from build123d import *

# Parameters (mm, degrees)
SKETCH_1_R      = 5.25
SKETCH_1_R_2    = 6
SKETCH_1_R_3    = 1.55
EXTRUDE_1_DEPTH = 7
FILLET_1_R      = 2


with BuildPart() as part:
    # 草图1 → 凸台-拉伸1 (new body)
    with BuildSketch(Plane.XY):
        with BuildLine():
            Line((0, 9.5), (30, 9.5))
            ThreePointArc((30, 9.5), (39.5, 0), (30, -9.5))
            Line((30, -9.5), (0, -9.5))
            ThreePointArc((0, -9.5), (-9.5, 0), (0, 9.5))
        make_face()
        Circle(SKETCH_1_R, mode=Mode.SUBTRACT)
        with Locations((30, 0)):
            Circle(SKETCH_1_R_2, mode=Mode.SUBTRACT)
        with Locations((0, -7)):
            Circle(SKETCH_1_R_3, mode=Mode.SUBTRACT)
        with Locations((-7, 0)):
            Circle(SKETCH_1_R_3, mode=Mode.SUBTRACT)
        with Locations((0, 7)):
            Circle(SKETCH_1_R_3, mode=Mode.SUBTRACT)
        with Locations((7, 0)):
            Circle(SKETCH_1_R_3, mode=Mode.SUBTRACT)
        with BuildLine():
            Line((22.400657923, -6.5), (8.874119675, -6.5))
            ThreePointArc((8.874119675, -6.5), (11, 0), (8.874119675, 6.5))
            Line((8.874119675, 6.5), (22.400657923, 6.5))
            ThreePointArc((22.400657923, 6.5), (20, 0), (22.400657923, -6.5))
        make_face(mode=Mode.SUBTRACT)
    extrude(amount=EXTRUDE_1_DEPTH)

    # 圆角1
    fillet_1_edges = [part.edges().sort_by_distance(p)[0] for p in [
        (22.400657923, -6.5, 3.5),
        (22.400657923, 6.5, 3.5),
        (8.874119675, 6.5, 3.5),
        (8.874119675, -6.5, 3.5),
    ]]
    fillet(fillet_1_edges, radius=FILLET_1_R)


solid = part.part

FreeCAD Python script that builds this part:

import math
import FreeCAD as App
import Part
import Sketcher

V = App.Vector
Q = App.Units.Quantity


def edges_at(feature, points):
    """Names of the edges that pass closest to the given points."""
    edges = feature.Shape.Edges
    near = lambda p: min(range(len(edges)), key=lambda i: edges[i].distToShape(Part.Vertex(*p))[0])
    return sorted({f"Edge{near(p) + 1}" for p in points})

doc = App.newDocument("Part")
body = doc.addObject("PartDesign::Body", "Body")

# Sketch on XY plane
sketch1 = body.newObject("Sketcher::SketchObject", "Sketch")
sketch1.AttachmentSupport = (doc.getObject("XY_Plane"), [""])
sketch1.MapMode = "FlatFace"
sketch1.addGeometry([
    Part.LineSegment(V(30, 9.5, 0), V(0, 9.5, 0)),  # 0
    Part.ArcOfCircle(Part.Circle(V(0, 0, 0), V(0, 0, 1), 9.5), math.radians(90), math.radians(270)),  # 1
    Part.LineSegment(V(0, -9.5, 0), V(30, -9.5, 0)),  # 2
    Part.ArcOfCircle(Part.Circle(V(30, 0, 0), V(0, 0, 1), 9.5), math.radians(-90), math.radians(90)),  # 3
    Part.Circle(V(0, -7, 0), V(0, 0, 1), 1.6),  # 4
    Part.Circle(V(30, 0, 0), V(0, 0, 1), 6),  # 5
    Part.LineSegment(V(22.4, -6.5, 0), V(8.9, -6.5, 0)),  # 6
    Part.ArcOfCircle(Part.Circle(V(0, 0, 0), V(0, 0, 1), 11), math.radians(-36), math.radians(36)),  # 7
    Part.LineSegment(V(8.9, 6.5, 0), V(22.4, 6.5, 0)),  # 8
    Part.ArcOfCircle(Part.Circle(V(30, 0, 0), V(0, 0, 1), 10), math.radians(139), math.radians(221)),  # 9
    Part.Circle(V(7, 0, 0), V(0, 0, 1), 1.6),  # 10
    Part.Circle(V(0, 0, 0), V(0, 0, 1), 5.2),  # 11
    Part.Circle(V(-7, 0, 0), V(0, 0, 1), 1.6),  # 12
    Part.Circle(V(0, 7, 0), V(0, 0, 1), 1.6),  # 13
], False)
sketch1.addConstraint([
    Sketcher.Constraint("Tangent", 0, 2, 1, 1),
    Sketcher.Constraint("Tangent", 1, 2, 2, 1),
    Sketcher.Constraint("Tangent", 2, 2, 3, 1),
    Sketcher.Constraint("Tangent", 3, 2, 0, 1),
    Sketcher.Constraint("Coincident", 6, 2, 7, 1),
    Sketcher.Constraint("Coincident", 7, 2, 8, 1),
    Sketcher.Constraint("Coincident", 8, 2, 9, 1),
    Sketcher.Constraint("Coincident", 9, 2, 6, 1),
    Sketcher.Constraint("Horizontal", 0),
    Sketcher.Constraint("Horizontal", 2),
    Sketcher.Constraint("Horizontal", 6),
    Sketcher.Constraint("Horizontal", 8),
    Sketcher.Constraint("Coincident", 1, 3, -1, 1),
    Sketcher.Constraint("Coincident", 7, 3, -1, 1),
    Sketcher.Constraint("Coincident", 11, 3, -1, 1),
    Sketcher.Constraint("Coincident", 5, 3, 3, 3),
    Sketcher.Constraint("Coincident", 9, 3, 3, 3),
    Sketcher.Constraint("Equal", 4, 10),
    Sketcher.Constraint("Equal", 10, 12),
    Sketcher.Constraint("Equal", 12, 13),
    Sketcher.Constraint("Symmetric", 10, 3, 12, 3, -1, 1),
    Sketcher.Constraint("Symmetric", 4, 3, 13, 3, -1, 1),
    Sketcher.Constraint("PointOnObject", 4, 3, -2),
    Sketcher.Constraint("PointOnObject", 10, 3, -1),
    Sketcher.Constraint("Vertical", 6, 2, 7, 2),
    Sketcher.Constraint("Diameter", 5, Q("12 mm")),
    Sketcher.Constraint("Radius", 7, Q("11 mm")),
    Sketcher.Constraint("Radius", 9, Q("10 mm")),
    Sketcher.Constraint("Diameter", 4, Q("3.1 mm")),
    Sketcher.Constraint("Diameter", 11, Q("10.5 mm")),
    Sketcher.Constraint("Radius", 1, Q("9.5 mm")),
    Sketcher.Constraint("DistanceX", 0, 2, 0, 1, Q("30 mm")),
    Sketcher.Constraint("DistanceY", 4, 3, -1, 1, Q("7 mm")),
    Sketcher.Constraint("DistanceX", -1, 1, 10, 3, Q("7 mm")),
    Sketcher.Constraint("DistanceY", 1, 2, 6, 2, Q("3 mm")),
])
pad1 = body.newObject("PartDesign::Pad", "Pad")
pad1.Profile = sketch1
pad1.Length = 7
doc.recompute()

fillet = body.newObject("PartDesign::Fillet", "Fillet")
fillet.Base = (pad1, edges_at(pad1, [
    (22.401, -6.5, 3.5),
    (22.401, 6.5, 3.5),
    (8.874, 6.5, 3.5),
    (8.874, -6.5, 3.5),
]))
fillet.Radius = 2

doc.recompute()
